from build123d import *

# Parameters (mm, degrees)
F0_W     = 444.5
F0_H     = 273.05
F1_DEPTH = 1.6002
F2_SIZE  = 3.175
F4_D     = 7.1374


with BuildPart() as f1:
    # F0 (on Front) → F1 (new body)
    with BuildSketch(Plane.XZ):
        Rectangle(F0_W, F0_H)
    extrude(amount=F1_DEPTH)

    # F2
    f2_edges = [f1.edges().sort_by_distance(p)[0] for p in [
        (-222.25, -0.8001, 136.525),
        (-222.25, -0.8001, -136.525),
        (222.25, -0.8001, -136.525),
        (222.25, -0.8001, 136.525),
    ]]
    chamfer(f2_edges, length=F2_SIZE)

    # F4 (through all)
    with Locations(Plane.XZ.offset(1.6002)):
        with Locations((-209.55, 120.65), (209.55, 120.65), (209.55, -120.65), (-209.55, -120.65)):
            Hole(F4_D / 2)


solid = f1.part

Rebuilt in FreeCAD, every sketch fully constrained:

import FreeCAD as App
import Part
import Sketcher
from FreeCAD import Vector
Q = App.Units.Quantity


def edges_at(feature, points):
    """Names of the edges that pass closest to the given points."""
    edges = feature.Shape.Edges
    near = lambda p: min(range(len(edges)), key=lambda i: edges[i].distToShape(Part.Vertex(*p))[0])
    return sorted({f"Edge{near(p) + 1}" for p in points})


def add_polygon(sketch, points):
    """Adds a closed chain of lines whose ends are joined by coincident constraints."""
    first, n = sketch.GeometryCount, len(points)
    for a, b in zip(points, points[1:] + points[:1]):
        sketch.addGeometry(Part.LineSegment(App.Vector(*a, 0), App.Vector(*b, 0)), False)
    for i in range(n):
        sketch.addConstraint(Sketcher.Constraint("Coincident", first + i, 2, first + (i + 1) % n, 1))

doc = App.newDocument("Part")
params = doc.addObject("Spreadsheet::Sheet", "Params")
for row, (alias, value) in enumerate([
    ("sketch1_width", "17.5 in"),
    ("sketch1_height", "10.75 in"),
    ("pad1_length", "0.063 in"),
    ("chamfer_size", "0.125 in"),
    ("sketch2_diameter", "0.281 in"),
    ("hole_diameter", "0.281 in"),
], start=1):
    params.set(f"A{row}", alias)
    params.set(f"B{row}", "=" + value)
    params.setAlias(f"B{row}", alias)

body = doc.addObject("PartDesign::Body", "Body")

# Sketch on XZ plane
sketch1 = body.newObject("Sketcher::SketchObject", "Sketch")
sketch1.AttachmentSupport = (doc.getObject("XZ_Plane"), [""])
sketch1.MapMode = "FlatFace"
add_polygon(sketch1, [(-222, 137), (-222, -137), (222, -137), (222, 137)])  # lines 0-3
sketch1.addConstraint([
    Sketcher.Constraint("Vertical", 0),
    Sketcher.Constraint("Horizontal", 1),
    Sketcher.Constraint("Vertical", 2),
    Sketcher.Constraint("Horizontal", 3),
    Sketcher.Constraint("Symmetric", 0, 2, 2, 2, -1, 1),
    Sketcher.Constraint("DistanceX", 1, 1, 1, 2, Q("17.5 in")),
    Sketcher.Constraint("DistanceY", 0, 2, 0, 1, Q("10.75 in")),
])
sketch1.setExpression("Constraints[9]", "Params.sketch1_width")
sketch1.setExpression("Constraints[10]", "Params.sketch1_height")
pad1 = body.newObject("PartDesign::Pad", "Pad")
pad1.Profile = sketch1
pad1.setExpression("Length", "Params.pad1_length")
doc.recompute()

chamfer = body.newObject("PartDesign::Chamfer", "Chamfer")
chamfer.Base = (pad1, edges_at(pad1, [
    (-222.25, -0.8, 136.525),
    (-222.25, -0.8, -136.525),
    (222.25, -0.8, -136.525),
    (222.25, -0.8, 136.525),
]))
chamfer.setExpression("Size", "Params.chamfer_size")

# Sketch on XZ plane
sketch2 = body.newObject("Sketcher::SketchObject", "Sketch001")
sketch2.AttachmentSupport = (doc.getObject("XZ_Plane"), [""])
sketch2.MapMode = "FlatFace"
sketch2.AttachmentOffset = App.Placement(Vector(0, 0, 0.063 * 25.4), App.Rotation())
sketch2.addGeometry([
    Part.Circle(Vector(-209.6, 120.7, 0), Vector(0, 0, 1), 3.6),
    Part.Circle(Vector(209.6, 120.7, 0), Vector(0, 0, 1), 3.6),
    Part.Circle(Vector(209.6, -120.7, 0), Vector(0, 0, 1), 3.6),
    Part.Circle(Vector(-209.6, -120.7, 0), Vector(0, 0, 1), 3.6),
], False)
sketch2.addConstraint([
    Sketcher.Constraint("Equal", 0, 1),
    Sketcher.Constraint("Equal", 1, 2),
    Sketcher.Constraint("Equal", 2, 3),
    Sketcher.Constraint("Symmetric", 0, 3, 2, 3, -1, 1),
    Sketcher.Constraint("Symmetric", 1, 3, 3, 3, -1, 1),
    Sketcher.Constraint("Symmetric", 0, 3, 1, 3, -2),
    Sketcher.Constraint("Diameter", 0, Q("0.281 in")),
    Sketcher.Constraint("DistanceX", 0, 3, 1, 3, Q("16.5 in")),
    Sketcher.Constraint("DistanceY", 2, 3, 1, 3, Q("9.5 in")),
])
sketch2.setExpression("Constraints[6]", "Params.sketch2_diameter")
doc.recompute()
hole = body.newObject("PartDesign::Hole", "Hole")
hole.Profile = sketch2
hole.ThreadType = "None"
hole.setExpression("Diameter", "Params.hole_diameter")
hole.DepthType = "ThroughAll"

doc.recompute()
